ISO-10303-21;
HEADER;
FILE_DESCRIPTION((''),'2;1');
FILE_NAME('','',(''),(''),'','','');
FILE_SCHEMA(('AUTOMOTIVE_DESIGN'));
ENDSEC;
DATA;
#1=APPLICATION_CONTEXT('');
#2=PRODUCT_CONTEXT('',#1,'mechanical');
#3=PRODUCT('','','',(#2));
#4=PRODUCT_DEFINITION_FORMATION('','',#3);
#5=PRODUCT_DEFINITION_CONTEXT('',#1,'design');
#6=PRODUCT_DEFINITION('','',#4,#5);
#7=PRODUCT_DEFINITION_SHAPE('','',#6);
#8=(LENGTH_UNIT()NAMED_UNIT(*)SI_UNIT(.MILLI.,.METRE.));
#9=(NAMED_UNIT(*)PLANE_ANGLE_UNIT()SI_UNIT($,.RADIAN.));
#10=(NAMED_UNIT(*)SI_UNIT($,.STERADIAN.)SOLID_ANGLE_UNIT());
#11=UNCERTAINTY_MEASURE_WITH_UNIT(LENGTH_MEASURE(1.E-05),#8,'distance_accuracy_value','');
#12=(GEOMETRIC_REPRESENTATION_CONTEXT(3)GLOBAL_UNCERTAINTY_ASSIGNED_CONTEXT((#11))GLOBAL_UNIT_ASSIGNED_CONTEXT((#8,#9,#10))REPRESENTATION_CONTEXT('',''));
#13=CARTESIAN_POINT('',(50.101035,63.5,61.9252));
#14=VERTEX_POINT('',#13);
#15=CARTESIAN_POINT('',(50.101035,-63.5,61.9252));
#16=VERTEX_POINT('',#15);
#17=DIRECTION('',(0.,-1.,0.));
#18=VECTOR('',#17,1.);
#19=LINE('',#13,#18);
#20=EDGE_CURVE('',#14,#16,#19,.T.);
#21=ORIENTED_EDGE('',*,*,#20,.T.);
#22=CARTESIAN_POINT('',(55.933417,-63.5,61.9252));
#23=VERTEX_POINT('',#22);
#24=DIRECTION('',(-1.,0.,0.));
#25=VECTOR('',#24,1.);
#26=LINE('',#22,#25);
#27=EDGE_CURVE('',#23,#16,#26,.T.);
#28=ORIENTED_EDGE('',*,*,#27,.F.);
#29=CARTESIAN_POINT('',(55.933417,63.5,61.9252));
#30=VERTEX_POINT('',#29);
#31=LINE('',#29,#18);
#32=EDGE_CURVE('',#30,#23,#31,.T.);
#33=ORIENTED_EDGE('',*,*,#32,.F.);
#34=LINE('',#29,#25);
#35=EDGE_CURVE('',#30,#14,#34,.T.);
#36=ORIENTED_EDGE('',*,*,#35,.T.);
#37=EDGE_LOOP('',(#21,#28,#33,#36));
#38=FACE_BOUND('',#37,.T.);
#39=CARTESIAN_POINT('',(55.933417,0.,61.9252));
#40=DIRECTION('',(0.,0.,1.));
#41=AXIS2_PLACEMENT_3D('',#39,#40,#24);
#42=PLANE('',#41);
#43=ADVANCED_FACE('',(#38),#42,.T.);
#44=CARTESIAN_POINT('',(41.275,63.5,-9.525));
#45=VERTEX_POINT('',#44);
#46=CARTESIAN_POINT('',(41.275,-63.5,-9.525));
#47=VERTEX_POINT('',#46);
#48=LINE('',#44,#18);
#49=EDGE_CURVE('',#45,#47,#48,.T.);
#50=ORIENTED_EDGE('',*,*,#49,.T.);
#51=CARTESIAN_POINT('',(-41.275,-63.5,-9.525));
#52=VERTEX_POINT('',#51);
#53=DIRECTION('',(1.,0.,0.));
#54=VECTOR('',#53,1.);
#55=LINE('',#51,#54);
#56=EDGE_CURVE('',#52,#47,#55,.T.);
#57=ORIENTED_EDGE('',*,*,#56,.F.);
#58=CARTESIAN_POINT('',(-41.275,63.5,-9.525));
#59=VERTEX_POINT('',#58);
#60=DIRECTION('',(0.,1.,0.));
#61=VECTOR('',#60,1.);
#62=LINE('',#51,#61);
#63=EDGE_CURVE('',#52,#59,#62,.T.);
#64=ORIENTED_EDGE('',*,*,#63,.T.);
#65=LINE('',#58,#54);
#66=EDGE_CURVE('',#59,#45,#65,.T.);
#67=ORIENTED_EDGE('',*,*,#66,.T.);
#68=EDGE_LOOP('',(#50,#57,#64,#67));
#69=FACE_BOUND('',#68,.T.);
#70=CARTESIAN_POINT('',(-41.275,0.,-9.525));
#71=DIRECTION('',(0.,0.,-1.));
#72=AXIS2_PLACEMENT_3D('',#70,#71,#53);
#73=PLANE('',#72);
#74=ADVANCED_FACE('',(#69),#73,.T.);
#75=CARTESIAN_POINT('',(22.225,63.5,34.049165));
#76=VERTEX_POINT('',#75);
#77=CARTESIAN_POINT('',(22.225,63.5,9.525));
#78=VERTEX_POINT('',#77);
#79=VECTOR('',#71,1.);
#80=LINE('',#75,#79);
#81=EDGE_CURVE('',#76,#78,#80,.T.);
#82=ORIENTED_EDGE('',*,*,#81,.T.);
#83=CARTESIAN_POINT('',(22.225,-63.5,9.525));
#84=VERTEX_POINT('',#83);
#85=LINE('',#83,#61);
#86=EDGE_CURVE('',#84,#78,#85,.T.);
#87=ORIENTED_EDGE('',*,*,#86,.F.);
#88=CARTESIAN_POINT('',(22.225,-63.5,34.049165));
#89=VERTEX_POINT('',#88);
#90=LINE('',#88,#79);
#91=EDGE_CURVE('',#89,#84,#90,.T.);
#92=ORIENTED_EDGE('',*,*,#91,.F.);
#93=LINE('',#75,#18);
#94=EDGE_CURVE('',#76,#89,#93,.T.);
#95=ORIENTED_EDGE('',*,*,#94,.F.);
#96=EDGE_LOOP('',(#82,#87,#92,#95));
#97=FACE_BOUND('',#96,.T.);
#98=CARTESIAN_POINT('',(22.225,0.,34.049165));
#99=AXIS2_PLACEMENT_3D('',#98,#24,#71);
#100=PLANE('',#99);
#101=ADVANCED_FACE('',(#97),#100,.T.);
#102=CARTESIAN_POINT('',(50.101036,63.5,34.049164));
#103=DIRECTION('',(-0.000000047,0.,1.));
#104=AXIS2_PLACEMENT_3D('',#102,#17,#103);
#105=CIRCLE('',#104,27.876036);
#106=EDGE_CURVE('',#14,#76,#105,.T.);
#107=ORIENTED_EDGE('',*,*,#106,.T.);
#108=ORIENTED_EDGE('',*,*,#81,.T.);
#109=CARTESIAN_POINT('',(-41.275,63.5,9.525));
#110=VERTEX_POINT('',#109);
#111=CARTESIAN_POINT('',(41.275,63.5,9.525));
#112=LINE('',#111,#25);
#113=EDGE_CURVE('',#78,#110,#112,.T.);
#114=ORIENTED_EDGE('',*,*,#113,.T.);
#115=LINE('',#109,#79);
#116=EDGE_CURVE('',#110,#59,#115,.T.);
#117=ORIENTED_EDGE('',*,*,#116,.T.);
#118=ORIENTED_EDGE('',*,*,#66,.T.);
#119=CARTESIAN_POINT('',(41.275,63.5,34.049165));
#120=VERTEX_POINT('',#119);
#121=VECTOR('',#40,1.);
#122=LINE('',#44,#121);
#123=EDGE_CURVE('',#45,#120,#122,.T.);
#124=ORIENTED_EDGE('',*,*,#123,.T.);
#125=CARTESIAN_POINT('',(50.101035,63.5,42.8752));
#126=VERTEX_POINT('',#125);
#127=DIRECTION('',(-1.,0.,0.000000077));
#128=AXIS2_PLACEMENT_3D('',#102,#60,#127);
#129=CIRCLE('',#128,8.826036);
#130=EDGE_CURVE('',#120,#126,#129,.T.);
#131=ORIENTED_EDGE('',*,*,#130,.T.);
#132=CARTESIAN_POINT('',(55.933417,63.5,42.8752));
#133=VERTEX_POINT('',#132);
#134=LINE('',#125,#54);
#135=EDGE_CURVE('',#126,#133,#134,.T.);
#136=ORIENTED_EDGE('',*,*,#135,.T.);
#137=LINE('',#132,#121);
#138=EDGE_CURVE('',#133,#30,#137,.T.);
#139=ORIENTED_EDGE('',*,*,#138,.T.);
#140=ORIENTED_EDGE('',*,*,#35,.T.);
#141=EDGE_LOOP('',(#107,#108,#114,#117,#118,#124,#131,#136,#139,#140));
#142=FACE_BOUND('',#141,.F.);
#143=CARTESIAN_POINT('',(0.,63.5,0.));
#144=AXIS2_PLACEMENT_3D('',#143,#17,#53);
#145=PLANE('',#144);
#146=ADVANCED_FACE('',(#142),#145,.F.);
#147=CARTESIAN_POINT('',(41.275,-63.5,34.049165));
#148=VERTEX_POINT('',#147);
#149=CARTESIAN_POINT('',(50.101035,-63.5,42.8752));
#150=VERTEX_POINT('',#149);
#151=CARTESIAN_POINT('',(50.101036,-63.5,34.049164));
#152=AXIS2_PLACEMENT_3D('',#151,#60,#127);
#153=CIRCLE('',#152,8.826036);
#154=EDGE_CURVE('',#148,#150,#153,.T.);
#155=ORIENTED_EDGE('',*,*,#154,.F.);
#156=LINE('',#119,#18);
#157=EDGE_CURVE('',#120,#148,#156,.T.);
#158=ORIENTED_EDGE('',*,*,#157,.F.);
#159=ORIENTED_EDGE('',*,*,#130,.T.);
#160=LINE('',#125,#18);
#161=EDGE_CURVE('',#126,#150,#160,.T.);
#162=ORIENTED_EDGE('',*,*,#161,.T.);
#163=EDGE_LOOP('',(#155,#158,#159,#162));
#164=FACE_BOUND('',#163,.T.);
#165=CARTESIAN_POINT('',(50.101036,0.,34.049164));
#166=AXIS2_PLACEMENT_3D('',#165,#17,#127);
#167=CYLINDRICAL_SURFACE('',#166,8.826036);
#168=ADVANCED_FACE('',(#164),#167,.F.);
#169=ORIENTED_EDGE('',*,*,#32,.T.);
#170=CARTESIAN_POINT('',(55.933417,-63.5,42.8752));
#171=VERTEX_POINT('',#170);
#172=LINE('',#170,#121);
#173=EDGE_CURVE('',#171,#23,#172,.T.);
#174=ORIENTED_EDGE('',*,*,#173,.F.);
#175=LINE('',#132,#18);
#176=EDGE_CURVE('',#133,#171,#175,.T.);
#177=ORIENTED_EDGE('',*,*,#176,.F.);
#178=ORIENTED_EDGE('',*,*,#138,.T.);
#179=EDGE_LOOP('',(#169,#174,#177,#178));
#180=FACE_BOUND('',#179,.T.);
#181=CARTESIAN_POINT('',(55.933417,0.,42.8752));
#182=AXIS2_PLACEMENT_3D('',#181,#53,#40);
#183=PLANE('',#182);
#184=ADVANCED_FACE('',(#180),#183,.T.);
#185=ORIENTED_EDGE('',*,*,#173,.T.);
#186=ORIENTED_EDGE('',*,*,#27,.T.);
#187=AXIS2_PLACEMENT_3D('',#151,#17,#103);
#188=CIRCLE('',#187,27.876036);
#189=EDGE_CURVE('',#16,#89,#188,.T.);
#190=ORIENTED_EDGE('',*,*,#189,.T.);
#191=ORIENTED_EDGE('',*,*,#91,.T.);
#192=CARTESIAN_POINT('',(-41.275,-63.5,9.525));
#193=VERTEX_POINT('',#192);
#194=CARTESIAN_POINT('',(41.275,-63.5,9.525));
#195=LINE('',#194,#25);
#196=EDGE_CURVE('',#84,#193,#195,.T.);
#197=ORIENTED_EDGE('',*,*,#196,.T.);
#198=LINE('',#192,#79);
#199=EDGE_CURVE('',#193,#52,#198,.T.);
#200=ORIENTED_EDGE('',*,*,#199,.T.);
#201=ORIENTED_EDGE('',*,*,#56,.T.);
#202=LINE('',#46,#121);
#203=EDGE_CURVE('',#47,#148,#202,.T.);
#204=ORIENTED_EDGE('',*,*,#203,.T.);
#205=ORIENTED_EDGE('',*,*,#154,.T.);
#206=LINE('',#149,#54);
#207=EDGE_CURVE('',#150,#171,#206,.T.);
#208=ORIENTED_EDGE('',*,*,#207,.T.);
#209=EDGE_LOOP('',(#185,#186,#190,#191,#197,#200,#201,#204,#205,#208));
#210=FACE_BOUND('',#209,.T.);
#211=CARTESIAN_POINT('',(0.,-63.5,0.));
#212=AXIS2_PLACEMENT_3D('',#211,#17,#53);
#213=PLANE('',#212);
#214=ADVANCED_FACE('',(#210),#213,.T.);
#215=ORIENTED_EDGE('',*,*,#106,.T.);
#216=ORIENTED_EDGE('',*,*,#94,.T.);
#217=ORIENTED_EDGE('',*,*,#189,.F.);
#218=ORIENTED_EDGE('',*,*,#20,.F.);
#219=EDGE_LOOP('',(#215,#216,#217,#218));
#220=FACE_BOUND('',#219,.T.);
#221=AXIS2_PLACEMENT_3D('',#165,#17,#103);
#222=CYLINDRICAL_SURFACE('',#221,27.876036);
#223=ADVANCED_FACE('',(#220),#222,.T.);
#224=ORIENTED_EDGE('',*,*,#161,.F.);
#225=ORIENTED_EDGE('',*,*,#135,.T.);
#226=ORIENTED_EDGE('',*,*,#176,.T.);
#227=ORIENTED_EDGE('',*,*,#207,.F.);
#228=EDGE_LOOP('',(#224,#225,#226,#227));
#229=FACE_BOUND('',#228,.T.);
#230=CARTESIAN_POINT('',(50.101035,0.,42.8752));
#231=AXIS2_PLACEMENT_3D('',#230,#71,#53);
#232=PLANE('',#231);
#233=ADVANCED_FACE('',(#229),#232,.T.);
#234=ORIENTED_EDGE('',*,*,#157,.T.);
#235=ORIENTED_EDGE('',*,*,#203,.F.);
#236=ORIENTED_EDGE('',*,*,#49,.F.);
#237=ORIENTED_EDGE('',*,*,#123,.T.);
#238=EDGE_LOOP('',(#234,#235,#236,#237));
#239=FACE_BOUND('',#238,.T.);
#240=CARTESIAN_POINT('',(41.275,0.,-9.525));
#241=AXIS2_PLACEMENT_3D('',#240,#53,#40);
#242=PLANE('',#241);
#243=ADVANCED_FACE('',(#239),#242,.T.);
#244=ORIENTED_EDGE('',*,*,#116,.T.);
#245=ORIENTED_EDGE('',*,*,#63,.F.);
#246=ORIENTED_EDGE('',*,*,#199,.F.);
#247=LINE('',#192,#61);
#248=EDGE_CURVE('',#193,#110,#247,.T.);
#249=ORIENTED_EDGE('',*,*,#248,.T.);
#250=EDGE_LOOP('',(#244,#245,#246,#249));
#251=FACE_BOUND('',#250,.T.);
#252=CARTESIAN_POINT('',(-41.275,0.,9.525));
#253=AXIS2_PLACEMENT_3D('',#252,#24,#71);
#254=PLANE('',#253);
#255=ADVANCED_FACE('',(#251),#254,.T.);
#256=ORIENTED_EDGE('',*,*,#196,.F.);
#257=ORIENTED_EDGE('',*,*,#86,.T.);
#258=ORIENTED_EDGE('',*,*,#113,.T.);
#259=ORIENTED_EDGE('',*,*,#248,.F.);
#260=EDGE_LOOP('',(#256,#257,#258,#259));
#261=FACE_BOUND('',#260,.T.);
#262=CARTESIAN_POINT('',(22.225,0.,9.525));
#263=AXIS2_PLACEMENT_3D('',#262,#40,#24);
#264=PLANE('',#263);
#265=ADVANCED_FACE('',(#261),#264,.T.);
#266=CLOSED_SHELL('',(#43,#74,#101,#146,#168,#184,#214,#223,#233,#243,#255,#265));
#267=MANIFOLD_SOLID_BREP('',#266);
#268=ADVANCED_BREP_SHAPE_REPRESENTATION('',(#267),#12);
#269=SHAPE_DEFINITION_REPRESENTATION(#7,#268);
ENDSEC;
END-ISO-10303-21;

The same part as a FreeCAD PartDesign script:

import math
import FreeCAD as App
import Part
import Sketcher
Q = App.Units.Quantity

doc = App.newDocument("Part")
body = doc.addObject("PartDesign::Body", "Body")

sketch1 = doc.addObject("Sketcher::SketchObject", "Sketch")
body.addObject(sketch1)
sketch1.AttachmentSupport = (doc.XZ_Plane, [""])
sketch1.MapMode = "FlatFace"
sketch1.addGeometry(Part.LineSegment(App.Vector(-41, -10, 0), App.Vector(41, -10, 0)), False)
sketch1.addGeometry(Part.LineSegment(App.Vector(41, -10, 0), App.Vector(41, 34, 0)), False)
sketch1.addGeometry(Part.ArcOfCircle(Part.Circle(App.Vector(50, 34, 0), App.Vector(0, 0, 1), 9), math.radians(90), math.radians(180)), False)
sketch1.addGeometry(Part.LineSegment(App.Vector(50, 43, 0), App.Vector(56, 43, 0)), False)
sketch1.addGeometry(Part.LineSegment(App.Vector(56, 43, 0), App.Vector(56, 62, 0)), False)
sketch1.addGeometry(Part.LineSegment(App.Vector(56, 62, 0), App.Vector(50, 62, 0)), False)
sketch1.addGeometry(Part.ArcOfCircle(Part.Circle(App.Vector(50, 34, 0), App.Vector(0, 0, 1), 28), math.radians(90), math.radians(180)), False)
sketch1.addGeometry(Part.LineSegment(App.Vector(22, 34, 0), App.Vector(22, 10, 0)), False)
sketch1.addGeometry(Part.LineSegment(App.Vector(22, 10, 0), App.Vector(-41, 10, 0)), False)
sketch1.addGeometry(Part.LineSegment(App.Vector(-41, 10, 0), App.Vector(-41, -10, 0)), False)
sketch1.addConstraint(Sketcher.Constraint("Coincident", 0, 2, 1, 1))
sketch1.addConstraint(Sketcher.Constraint("Tangent", 1, 2, 2, 2))
sketch1.addConstraint(Sketcher.Constraint("Tangent", 2, 1, 3, 1))
sketch1.addConstraint(Sketcher.Constraint("Coincident", 3, 2, 4, 1))
sketch1.addConstraint(Sketcher.Constraint("Coincident", 4, 2, 5, 1))
sketch1.addConstraint(Sketcher.Constraint("Tangent", 5, 2, 6, 1))
sketch1.addConstraint(Sketcher.Constraint("Tangent", 6, 2, 7, 1))
sketch1.addConstraint(Sketcher.Constraint("Coincident", 7, 2, 8, 1))
sketch1.addConstraint(Sketcher.Constraint("Coincident", 8, 2, 9, 1))
sketch1.addConstraint(Sketcher.Constraint("Coincident", 9, 2, 0, 1))
sketch1.addConstraint(Sketcher.Constraint("Horizontal", 0))
sketch1.addConstraint(Sketcher.Constraint("Vertical", 1))
sketch1.addConstraint(Sketcher.Constraint("Horizontal", 3))
sketch1.addConstraint(Sketcher.Constraint("Vertical", 4))
sketch1.addConstraint(Sketcher.Constraint("Horizontal", 5))
sketch1.addConstraint(Sketcher.Constraint("Vertical", 7))
sketch1.addConstraint(Sketcher.Constraint("Horizontal", 8))
sketch1.addConstraint(Sketcher.Constraint("Vertical", 9))
sketch1.addConstraint(Sketcher.Constraint("Coincident", 6, 3, 2, 3))
sketch1.addConstraint(Sketcher.Constraint("Symmetric", 0, 2, 8, 2, -1, 1))
sketch1.addConstraint(Sketcher.Constraint("Equal", 4, 9))
sketch1.addConstraint(Sketcher.Constraint("DistanceX", 8, 2, 8, 1, Q("2.5 in")))
sketch1.addConstraint(Sketcher.Constraint("DistanceX", 0, 1, 0, 2, Q("3.25 in")))
sketch1.addConstraint(Sketcher.Constraint("DistanceY", -1, 1, 2, 1, Q("1.688 in")))
sketch1.addConstraint(Sketcher.Constraint("Radius", 2, Q("8.826036 mm")))
sketch1.addConstraint(Sketcher.Constraint("DistanceX", 3, 1, 3, 2, Q("5.832382 mm")))
pad1 = doc.addObject("PartDesign::Pad", "Pad")
body.addObject(pad1)
pad1.Profile = sketch1
pad1.Length = Q("5 in")
pad1.Midplane = True

doc.recompute()
